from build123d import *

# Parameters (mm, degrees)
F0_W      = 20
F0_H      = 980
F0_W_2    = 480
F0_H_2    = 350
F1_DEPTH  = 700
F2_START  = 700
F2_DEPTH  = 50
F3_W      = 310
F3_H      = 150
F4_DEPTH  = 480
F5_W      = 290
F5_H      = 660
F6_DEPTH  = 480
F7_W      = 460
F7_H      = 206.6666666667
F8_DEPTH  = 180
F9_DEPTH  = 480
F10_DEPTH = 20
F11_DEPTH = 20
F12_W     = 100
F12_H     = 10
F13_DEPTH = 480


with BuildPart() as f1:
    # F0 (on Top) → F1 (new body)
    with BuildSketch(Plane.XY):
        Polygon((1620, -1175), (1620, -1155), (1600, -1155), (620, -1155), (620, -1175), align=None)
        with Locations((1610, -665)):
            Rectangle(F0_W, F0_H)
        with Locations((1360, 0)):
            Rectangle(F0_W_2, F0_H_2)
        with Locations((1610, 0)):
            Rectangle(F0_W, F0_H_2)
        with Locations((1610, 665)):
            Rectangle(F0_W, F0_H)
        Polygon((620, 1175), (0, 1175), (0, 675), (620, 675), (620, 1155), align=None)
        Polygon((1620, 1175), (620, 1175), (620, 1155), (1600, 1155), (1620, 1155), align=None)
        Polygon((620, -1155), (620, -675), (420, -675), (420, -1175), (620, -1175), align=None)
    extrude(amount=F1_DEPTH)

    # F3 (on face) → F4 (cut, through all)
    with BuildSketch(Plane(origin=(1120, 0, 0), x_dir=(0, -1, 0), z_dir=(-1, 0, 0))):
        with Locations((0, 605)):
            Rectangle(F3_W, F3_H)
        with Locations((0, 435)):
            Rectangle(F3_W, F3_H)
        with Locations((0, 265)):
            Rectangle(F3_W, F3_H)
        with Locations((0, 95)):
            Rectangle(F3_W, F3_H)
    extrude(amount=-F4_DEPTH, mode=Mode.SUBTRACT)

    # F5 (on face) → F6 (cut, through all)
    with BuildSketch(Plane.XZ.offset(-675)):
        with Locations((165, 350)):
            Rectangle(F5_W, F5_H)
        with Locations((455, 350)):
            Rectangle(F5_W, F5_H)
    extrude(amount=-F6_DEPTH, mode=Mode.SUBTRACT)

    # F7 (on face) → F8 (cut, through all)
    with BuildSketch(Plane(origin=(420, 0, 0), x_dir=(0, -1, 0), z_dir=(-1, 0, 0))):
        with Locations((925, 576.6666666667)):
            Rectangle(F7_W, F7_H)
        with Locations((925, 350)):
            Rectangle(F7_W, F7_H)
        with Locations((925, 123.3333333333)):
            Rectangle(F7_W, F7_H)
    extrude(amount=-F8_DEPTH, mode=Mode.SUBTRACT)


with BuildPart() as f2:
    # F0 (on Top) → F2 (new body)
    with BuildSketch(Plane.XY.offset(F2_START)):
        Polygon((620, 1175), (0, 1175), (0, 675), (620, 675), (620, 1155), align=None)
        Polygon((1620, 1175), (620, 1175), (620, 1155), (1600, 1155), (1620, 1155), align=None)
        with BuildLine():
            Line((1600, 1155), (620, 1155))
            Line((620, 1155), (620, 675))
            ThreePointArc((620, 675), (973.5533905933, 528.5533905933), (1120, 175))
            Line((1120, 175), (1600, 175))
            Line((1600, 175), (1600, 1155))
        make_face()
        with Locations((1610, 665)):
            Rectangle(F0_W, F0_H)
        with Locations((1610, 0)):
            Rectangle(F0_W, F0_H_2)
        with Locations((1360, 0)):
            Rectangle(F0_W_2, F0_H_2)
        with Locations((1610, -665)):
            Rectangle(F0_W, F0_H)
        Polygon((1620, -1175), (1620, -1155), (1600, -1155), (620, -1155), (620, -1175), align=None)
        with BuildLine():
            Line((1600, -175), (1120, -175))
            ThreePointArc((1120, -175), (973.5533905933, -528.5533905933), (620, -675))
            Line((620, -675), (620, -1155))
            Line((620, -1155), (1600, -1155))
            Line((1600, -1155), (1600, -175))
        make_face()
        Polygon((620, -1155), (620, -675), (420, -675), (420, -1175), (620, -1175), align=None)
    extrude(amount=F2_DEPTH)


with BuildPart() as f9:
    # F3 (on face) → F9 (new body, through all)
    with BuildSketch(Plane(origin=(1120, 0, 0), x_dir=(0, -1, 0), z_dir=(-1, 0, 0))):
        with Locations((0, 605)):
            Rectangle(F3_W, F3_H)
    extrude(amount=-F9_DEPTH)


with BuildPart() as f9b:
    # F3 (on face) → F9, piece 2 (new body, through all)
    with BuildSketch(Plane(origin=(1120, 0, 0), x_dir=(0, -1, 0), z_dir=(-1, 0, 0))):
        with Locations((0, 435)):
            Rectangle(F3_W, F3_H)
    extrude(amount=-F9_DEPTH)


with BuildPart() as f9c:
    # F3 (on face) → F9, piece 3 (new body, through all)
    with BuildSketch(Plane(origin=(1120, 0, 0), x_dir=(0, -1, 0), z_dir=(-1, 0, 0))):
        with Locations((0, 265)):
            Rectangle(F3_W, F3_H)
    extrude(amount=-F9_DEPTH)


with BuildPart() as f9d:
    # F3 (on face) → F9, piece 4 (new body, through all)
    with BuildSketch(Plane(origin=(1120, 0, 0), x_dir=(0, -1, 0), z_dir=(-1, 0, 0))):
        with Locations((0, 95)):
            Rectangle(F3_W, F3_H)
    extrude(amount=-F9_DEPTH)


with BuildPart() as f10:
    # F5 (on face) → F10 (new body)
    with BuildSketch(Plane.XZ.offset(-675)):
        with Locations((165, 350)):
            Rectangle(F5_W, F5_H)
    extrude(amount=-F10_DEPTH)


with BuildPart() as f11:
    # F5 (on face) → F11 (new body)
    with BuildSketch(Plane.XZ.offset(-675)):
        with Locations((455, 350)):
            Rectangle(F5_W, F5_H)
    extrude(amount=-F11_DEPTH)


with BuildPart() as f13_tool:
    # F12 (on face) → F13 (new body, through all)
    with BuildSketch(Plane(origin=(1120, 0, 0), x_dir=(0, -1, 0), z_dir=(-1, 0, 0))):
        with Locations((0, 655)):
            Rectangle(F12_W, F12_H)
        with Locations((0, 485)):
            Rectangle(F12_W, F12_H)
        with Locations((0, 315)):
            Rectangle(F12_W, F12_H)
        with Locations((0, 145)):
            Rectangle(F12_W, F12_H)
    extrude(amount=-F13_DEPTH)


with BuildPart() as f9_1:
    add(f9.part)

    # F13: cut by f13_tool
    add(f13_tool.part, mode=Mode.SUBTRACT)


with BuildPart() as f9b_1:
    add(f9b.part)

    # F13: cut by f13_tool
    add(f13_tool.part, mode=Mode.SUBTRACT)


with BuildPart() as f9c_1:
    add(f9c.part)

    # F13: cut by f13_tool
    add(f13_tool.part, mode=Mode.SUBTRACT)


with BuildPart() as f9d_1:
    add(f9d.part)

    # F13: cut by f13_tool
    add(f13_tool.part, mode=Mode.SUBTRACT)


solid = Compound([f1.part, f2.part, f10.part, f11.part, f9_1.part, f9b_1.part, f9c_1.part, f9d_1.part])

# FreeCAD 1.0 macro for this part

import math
import FreeCAD as App
import Part
import Sketcher

doc = App.newDocument("Part")
body = doc.addObject("PartDesign::Body", "Body")

# Sketch on XY plane
sketch1 = body.newObject("Sketcher::SketchObject", "Sketch")
sketch1.AttachmentSupport = (doc.getObject("XY_Plane"), [""])
sketch1.MapMode = "FlatFace"
sketch1.addGeometry(Part.LineSegment(App.Vector(1620, -1175, 0), App.Vector(1620, 1175, 0)), False)
sketch1.addGeometry(Part.LineSegment(App.Vector(1620, 1175, 0), App.Vector(0, 1175, 0)), False)
sketch1.addGeometry(Part.LineSegment(App.Vector(0, 1175, 0), App.Vector(0, 675, 0)), False)
sketch1.addGeometry(Part.LineSegment(App.Vector(0, 675, 0), App.Vector(620, 675, 0)), False)
sketch1.addGeometry(Part.LineSegment(App.Vector(620, 675, 0), App.Vector(620, 1155, 0)), False)
sketch1.addGeometry(Part.LineSegment(App.Vector(620, 1155, 0), App.Vector(1600, 1155, 0)), False)
sketch1.addGeometry(Part.LineSegment(App.Vector(1600, 1155, 0), App.Vector(1600, 175, 0)), False)
sketch1.addGeometry(Part.LineSegment(App.Vector(1600, 175, 0), App.Vector(1120, 175, 0)), False)
sketch1.addGeometry(Part.LineSegment(App.Vector(1120, 175, 0), App.Vector(1120, -175, 0)), False)
sketch1.addGeometry(Part.LineSegment(App.Vector(1120, -175, 0), App.Vector(1600, -175, 0)), False)
sketch1.addGeometry(Part.LineSegment(App.Vector(1600, -175, 0), App.Vector(1600, -1155, 0)), False)
sketch1.addGeometry(Part.LineSegment(App.Vector(1600, -1155, 0), App.Vector(620, -1155, 0)), False)
sketch1.addGeometry(Part.LineSegment(App.Vector(620, -1155, 0), App.Vector(620, -675, 0)), False)
sketch1.addGeometry(Part.LineSegment(App.Vector(620, -675, 0), App.Vector(420, -675, 0)), False)
sketch1.addGeometry(Part.LineSegment(App.Vector(420, -675, 0), App.Vector(420, -1175, 0)), False)
sketch1.addGeometry(Part.LineSegment(App.Vector(420, -1175, 0), App.Vector(1620, -1175, 0)), False)
sketch1.addConstraint(Sketcher.Constraint("Coincident", 0, 2, 1, 1))
sketch1.addConstraint(Sketcher.Constraint("Coincident", 1, 2, 2, 1))
sketch1.addConstraint(Sketcher.Constraint("Coincident", 2, 2, 3, 1))
sketch1.addConstraint(Sketcher.Constraint("Coincident", 3, 2, 4, 1))
sketch1.addConstraint(Sketcher.Constraint("Coincident", 4, 2, 5, 1))
sketch1.addConstraint(Sketcher.Constraint("Coincident", 5, 2, 6, 1))
sketch1.addConstraint(Sketcher.Constraint("Coincident", 6, 2, 7, 1))
sketch1.addConstraint(Sketcher.Constraint("Coincident", 7, 2, 8, 1))
sketch1.addConstraint(Sketcher.Constraint("Coincident", 8, 2, 9, 1))
sketch1.addConstraint(Sketcher.Constraint("Coincident", 9, 2, 10, 1))
sketch1.addConstraint(Sketcher.Constraint("Coincident", 10, 2, 11, 1))
sketch1.addConstraint(Sketcher.Constraint("Coincident", 11, 2, 12, 1))
sketch1.addConstraint(Sketcher.Constraint("Coincident", 12, 2, 13, 1))
sketch1.addConstraint(Sketcher.Constraint("Coincident", 13, 2, 14, 1))
sketch1.addConstraint(Sketcher.Constraint("Coincident", 14, 2, 15, 1))
sketch1.addConstraint(Sketcher.Constraint("Coincident", 15, 2, 0, 1))
sketch1.addConstraint(Sketcher.Constraint("Vertical", 0))
sketch1.addConstraint(Sketcher.Constraint("Horizontal", 1))
sketch1.addConstraint(Sketcher.Constraint("Vertical", 2))
sketch1.addConstraint(Sketcher.Constraint("Horizontal", 3))
sketch1.addConstraint(Sketcher.Constraint("Vertical", 4))
sketch1.addConstraint(Sketcher.Constraint("Horizontal", 5))
sketch1.addConstraint(Sketcher.Constraint("Vertical", 6))
sketch1.addConstraint(Sketcher.Constraint("Horizontal", 7))
sketch1.addConstraint(Sketcher.Constraint("Vertical", 8))
sketch1.addConstraint(Sketcher.Constraint("Horizontal", 9))
sketch1.addConstraint(Sketcher.Constraint("Vertical", 10))
sketch1.addConstraint(Sketcher.Constraint("Horizontal", 11))
sketch1.addConstraint(Sketcher.Constraint("Vertical", 12))
sketch1.addConstraint(Sketcher.Constraint("Horizontal", 13))
sketch1.addConstraint(Sketcher.Constraint("Vertical", 14))
sketch1.addConstraint(Sketcher.Constraint("Horizontal", 15))
sketch1.addConstraint(Sketcher.Constraint("Symmetric", 6, 2, 9, 2, -1))
sketch1.addConstraint(Sketcher.Constraint("Symmetric", 4, 2, 11, 2, -1))
sketch1.addConstraint(Sketcher.Constraint("PointOnObject", 1, 2, -2))
sketch1.addConstraint(Sketcher.Constraint("Equal", 9, 4))
sketch1.addConstraint(Sketcher.Constraint("Equal", 11, 6))
sketch1.addConstraint(Sketcher.Constraint("Equal", 4, 12))
sketch1.addConstraint(Sketcher.Constraint("Equal", 2, 14))
sketch1.addConstraint(Sketcher.Constraint("DistanceX", 1, 2, 1, 1, 1620.0))
sketch1.addConstraint(Sketcher.Constraint("DistanceX", 3, 1, 3, 2, 620.0))
sketch1.addConstraint(Sketcher.Constraint("DistanceX", 5, 1, 5, 2, 980.0))
sketch1.addConstraint(Sketcher.Constraint("DistanceX", 7, 2, 7, 1, 480.0))
sketch1.addConstraint(Sketcher.Constraint("DistanceX", 13, 2, 13, 1, 200.0))
sketch1.addConstraint(Sketcher.Constraint("DistanceY", 0, 1, 0, 2, 2350.0))
sketch1.addConstraint(Sketcher.Constraint("DistanceY", 2, 2, 2, 1, 500.0))
pad1 = body.newObject("PartDesign::Pad", "Pad")
pad1.Profile = sketch1
pad1.Length = 700

# Sketch on YZ plane
sketch2 = body.newObject("Sketcher::SketchObject", "Sketch001")
sketch2.AttachmentSupport = (doc.getObject("YZ_Plane"), [""])
sketch2.MapMode = "FlatFace"
sketch2.AttachmentOffset = App.Placement(App.Vector(0, 0, 1120), App.Rotation())
sketch2.addGeometry(Part.LineSegment(App.Vector(155, 680, 0), App.Vector(155, 530, 0)), False)
sketch2.addGeometry(Part.LineSegment(App.Vector(155, 530, 0), App.Vector(-155, 530, 0)), False)
sketch2.addGeometry(Part.LineSegment(App.Vector(-155, 530, 0), App.Vector(-155, 680, 0)), False)
sketch2.addGeometry(Part.LineSegment(App.Vector(-155, 680, 0), App.Vector(155, 680, 0)), False)
sketch2.addGeometry(Part.LineSegment(App.Vector(155, 510, 0), App.Vector(155, 360, 0)), False)
sketch2.addGeometry(Part.LineSegment(App.Vector(155, 360, 0), App.Vector(-155, 360, 0)), False)
sketch2.addGeometry(Part.LineSegment(App.Vector(-155, 360, 0), App.Vector(-155, 510, 0)), False)
sketch2.addGeometry(Part.LineSegment(App.Vector(-155, 510, 0), App.Vector(155, 510, 0)), False)
sketch2.addGeometry(Part.LineSegment(App.Vector(155, 340, 0), App.Vector(155, 190, 0)), False)
sketch2.addGeometry(Part.LineSegment(App.Vector(155, 190, 0), App.Vector(-155, 190, 0)), False)
sketch2.addGeometry(Part.LineSegment(App.Vector(-155, 190, 0), App.Vector(-155, 340, 0)), False)
sketch2.addGeometry(Part.LineSegment(App.Vector(-155, 340, 0), App.Vector(155, 340, 0)), False)
sketch2.addGeometry(Part.LineSegment(App.Vector(155, 170, 0), App.Vector(155, 20, 0)), False)
sketch2.addGeometry(Part.LineSegment(App.Vector(155, 20, 0), App.Vector(-155, 20, 0)), False)
sketch2.addGeometry(Part.LineSegment(App.Vector(-155, 20, 0), App.Vector(-155, 170, 0)), False)
sketch2.addGeometry(Part.LineSegment(App.Vector(-155, 170, 0), App.Vector(155, 170, 0)), False)
sketch2.addConstraint(Sketcher.Constraint("Coincident", 0, 2, 1, 1))
sketch2.addConstraint(Sketcher.Constraint("Coincident", 1, 2, 2, 1))
sketch2.addConstraint(Sketcher.Constraint("Coincident", 2, 2, 3, 1))
sketch2.addConstraint(Sketcher.Constraint("Coincident", 3, 2, 0, 1))
sketch2.addConstraint(Sketcher.Constraint("Coincident", 4, 2, 5, 1))
sketch2.addConstraint(Sketcher.Constraint("Coincident", 5, 2, 6, 1))
sketch2.addConstraint(Sketcher.Constraint("Coincident", 6, 2, 7, 1))
sketch2.addConstraint(Sketcher.Constraint("Coincident", 7, 2, 4, 1))
sketch2.addConstraint(Sketcher.Constraint("Coincident", 8, 2, 9, 1))
sketch2.addConstraint(Sketcher.Constraint("Coincident", 9, 2, 10, 1))
sketch2.addConstraint(Sketcher.Constraint("Coincident", 10, 2, 11, 1))
sketch2.addConstraint(Sketcher.Constraint("Coincident", 11, 2, 8, 1))
sketch2.addConstraint(Sketcher.Constraint("Coincident", 12, 2, 13, 1))
sketch2.addConstraint(Sketcher.Constraint("Coincident", 13, 2, 14, 1))
sketch2.addConstraint(Sketcher.Constraint("Coincident", 14, 2, 15, 1))
sketch2.addConstraint(Sketcher.Constraint("Coincident", 15, 2, 12, 1))
sketch2.addConstraint(Sketcher.Constraint("Vertical", 0))
sketch2.addConstraint(Sketcher.Constraint("Horizontal", 1))
sketch2.addConstraint(Sketcher.Constraint("Vertical", 2))
sketch2.addConstraint(Sketcher.Constraint("Horizontal", 3))
sketch2.addConstraint(Sketcher.Constraint("Vertical", 4))
sketch2.addConstraint(Sketcher.Constraint("Horizontal", 5))
sketch2.addConstraint(Sketcher.Constraint("Vertical", 6))
sketch2.addConstraint(Sketcher.Constraint("Horizontal", 7))
sketch2.addConstraint(Sketcher.Constraint("Vertical", 8))
sketch2.addConstraint(Sketcher.Constraint("Horizontal", 9))
sketch2.addConstraint(Sketcher.Constraint("Vertical", 10))
sketch2.addConstraint(Sketcher.Constraint("Horizontal", 11))
sketch2.addConstraint(Sketcher.Constraint("Vertical", 12))
sketch2.addConstraint(Sketcher.Constraint("Horizontal", 13))
sketch2.addConstraint(Sketcher.Constraint("Vertical", 14))
sketch2.addConstraint(Sketcher.Constraint("Horizontal", 15))
sketch2.addConstraint(Sketcher.Constraint("Vertical", 3, 2, 4, 2))
sketch2.addConstraint(Sketcher.Constraint("Vertical", 2, 2, 5, 2))
sketch2.addConstraint(Sketcher.Constraint("Vertical", 7, 2, 8, 2))
sketch2.addConstraint(Sketcher.Constraint("Vertical", 6, 2, 9, 2))
sketch2.addConstraint(Sketcher.Constraint("Vertical", 11, 2, 12, 2))
sketch2.addConstraint(Sketcher.Constraint("Vertical", 10, 2, 13, 2))
sketch2.addConstraint(Sketcher.Constraint("Equal", 2, 4))
sketch2.addConstraint(Sketcher.Constraint("Equal", 6, 8))
sketch2.addConstraint(Sketcher.Constraint("Equal", 10, 12))
sketch2.addConstraint(Sketcher.Constraint("DistanceX", 1, 2, 1, 1, 310.0))
sketch2.addConstraint(Sketcher.Constraint("DistanceY", 0, 2, 0, 1, 150.0))
sketch2.addConstraint(Sketcher.Constraint("DistanceX", -1, 1, 0, 2, 155.0))
sketch2.addConstraint(Sketcher.Constraint("DistanceY", -1, 1, 0, 2, 530.0))
sketch2.addConstraint(Sketcher.Constraint("DistanceY", -1, 1, 4, 2, 360.0))
sketch2.addConstraint(Sketcher.Constraint("DistanceY", -1, 1, 8, 2, 190.0))
sketch2.addConstraint(Sketcher.Constraint("DistanceY", -1, 1, 12, 2, 20.0))
pocket1 = body.newObject("PartDesign::Pocket", "Pocket")
pocket1.Profile = sketch2
pocket1.Length = 480
pocket1.Reversed = True

# Sketch on XZ plane
sketch3 = body.newObject("Sketcher::SketchObject", "Sketch002")
sketch3.AttachmentSupport = (doc.getObject("XZ_Plane"), [""])
sketch3.MapMode = "FlatFace"
sketch3.AttachmentOffset = App.Placement(App.Vector(0, 0, -675), App.Rotation())
sketch3.addGeometry(Part.LineSegment(App.Vector(20, 680, 0), App.Vector(20, 20, 0)), False)
sketch3.addGeometry(Part.LineSegment(App.Vector(20, 20, 0), App.Vector(600, 20, 0)), False)
sketch3.addGeometry(Part.LineSegment(App.Vector(600, 20, 0), App.Vector(600, 680, 0)), False)
sketch3.addGeometry(Part.LineSegment(App.Vector(600, 680, 0), App.Vector(20, 680, 0)), False)
sketch3.addConstraint(Sketcher.Constraint("Coincident", 0, 2, 1, 1))
sketch3.addConstraint(Sketcher.Constraint("Coincident", 1, 2, 2, 1))
sketch3.addConstraint(Sketcher.Constraint("Coincident", 2, 2, 3, 1))
sketch3.addConstraint(Sketcher.Constraint("Coincident", 3, 2, 0, 1))
sketch3.addConstraint(Sketcher.Constraint("Vertical", 0))
sketch3.addConstraint(Sketcher.Constraint("Horizontal", 1))
sketch3.addConstraint(Sketcher.Constraint("Vertical", 2))
sketch3.addConstraint(Sketcher.Constraint("Horizontal", 3))
sketch3.addConstraint(Sketcher.Constraint("DistanceX", 1, 1, 1, 2, 580.0))
sketch3.addConstraint(Sketcher.Constraint("DistanceY", 0, 2, 0, 1, 660.0))
sketch3.addConstraint(Sketcher.Constraint("DistanceX", -1, 1, 0, 2, 20.0))
sketch3.addConstraint(Sketcher.Constraint("DistanceY", -1, 1, 0, 2, 20.0))
pocket2 = body.newObject("PartDesign::Pocket", "Pocket001")
pocket2.Profile = sketch3
pocket2.Length = 480

# Sketch on YZ plane
sketch4 = body.newObject("Sketcher::SketchObject", "Sketch003")
sketch4.AttachmentSupport = (doc.getObject("YZ_Plane"), [""])
sketch4.MapMode = "FlatFace"
sketch4.AttachmentOffset = App.Placement(App.Vector(0, 0, 420), App.Rotation())
sketch4.addGeometry(Part.LineSegment(App.Vector(-695, 680, 0), App.Vector(-695, 473, 0)), False)
sketch4.addGeometry(Part.LineSegment(App.Vector(-695, 473, 0), App.Vector(-1155, 473, 0)), False)
sketch4.addGeometry(Part.LineSegment(App.Vector(-1155, 473, 0), App.Vector(-1155, 680, 0)), False)
sketch4.addGeometry(Part.LineSegment(App.Vector(-1155, 680, 0), App.Vector(-695, 680, 0)), False)
sketch4.addGeometry(Part.LineSegment(App.Vector(-695, 453, 0), App.Vector(-695, 247, 0)), False)
sketch4.addGeometry(Part.LineSegment(App.Vector(-695, 247, 0), App.Vector(-1155, 247, 0)), False)
sketch4.addGeometry(Part.LineSegment(App.Vector(-1155, 247, 0), App.Vector(-1155, 453, 0)), False)
sketch4.addGeometry(Part.LineSegment(App.Vector(-1155, 453, 0), App.Vector(-695, 453, 0)), False)
sketch4.addGeometry(Part.LineSegment(App.Vector(-695, 227, 0), App.Vector(-695, 20, 0)), False)
sketch4.addGeometry(Part.LineSegment(App.Vector(-695, 20, 0), App.Vector(-1155, 20, 0)), False)
sketch4.addGeometry(Part.LineSegment(App.Vector(-1155, 20, 0), App.Vector(-1155, 227, 0)), False)
sketch4.addGeometry(Part.LineSegment(App.Vector(-1155, 227, 0), App.Vector(-695, 227, 0)), False)
sketch4.addConstraint(Sketcher.Constraint("Coincident", 0, 2, 1, 1))
sketch4.addConstraint(Sketcher.Constraint("Coincident", 1, 2, 2, 1))
sketch4.addConstraint(Sketcher.Constraint("Coincident", 2, 2, 3, 1))
sketch4.addConstraint(Sketcher.Constraint("Coincident", 3, 2, 0, 1))
sketch4.addConstraint(Sketcher.Constraint("Coincident", 4, 2, 5, 1))
sketch4.addConstraint(Sketcher.Constraint("Coincident", 5, 2, 6, 1))
sketch4.addConstraint(Sketcher.Constraint("Coincident", 6, 2, 7, 1))
sketch4.addConstraint(Sketcher.Constraint("Coincident", 7, 2, 4, 1))
sketch4.addConstraint(Sketcher.Constraint("Coincident", 8, 2, 9, 1))
sketch4.addConstraint(Sketcher.Constraint("Coincident", 9, 2, 10, 1))
sketch4.addConstraint(Sketcher.Constraint("Coincident", 10, 2, 11, 1))
sketch4.addConstraint(Sketcher.Constraint("Coincident", 11, 2, 8, 1))
sketch4.addConstraint(Sketcher.Constraint("Vertical", 0))
sketch4.addConstraint(Sketcher.Constraint("Horizontal", 1))
sketch4.addConstraint(Sketcher.Constraint("Vertical", 2))
sketch4.addConstraint(Sketcher.Constraint("Horizontal", 3))
sketch4.addConstraint(Sketcher.Constraint("Vertical", 4))
sketch4.addConstraint(Sketcher.Constraint("Horizontal", 5))
sketch4.addConstraint(Sketcher.Constraint("Vertical", 6))
sketch4.addConstraint(Sketcher.Constraint("Horizontal", 7))
sketch4.addConstraint(Sketcher.Constraint("Vertical", 8))
sketch4.addConstraint(Sketcher.Constraint("Horizontal", 9))
sketch4.addConstraint(Sketcher.Constraint("Vertical", 10))
sketch4.addConstraint(Sketcher.Constraint("Horizontal", 11))
sketch4.addConstraint(Sketcher.Constraint("Vertical", 3, 2, 4, 2))
sketch4.addConstraint(Sketcher.Constraint("Vertical", 2, 2, 5, 2))
sketch4.addConstraint(Sketcher.Constraint("Vertical", 7, 2, 8, 2))
sketch4.addConstraint(Sketcher.Constraint("Vertical", 6, 2, 9, 2))
sketch4.addConstraint(Sketcher.Constraint("Equal", 2, 4))
sketch4.addConstraint(Sketcher.Constraint("Equal", 6, 8))
sketch4.addConstraint(Sketcher.Constraint("DistanceX", 1, 2, 1, 1, 460.0))
sketch4.addConstraint(Sketcher.Constraint("DistanceX", 0, 2, -1, 1, 695.0))
sketch4.addConstraint(Sketcher.Constraint("DistanceY", -1, 1, 2, 2, 680.0))
sketch4.addConstraint(Sketcher.Constraint("DistanceY", -1, 1, 8, 2, 20.0))
sketch4.addConstraint(Sketcher.Constraint("DistanceY", 6, 2, 1, 2, 20.0))
sketch4.addConstraint(Sketcher.Constraint("DistanceY", 10, 2, 5, 2, 20.0))
pocket3 = body.newObject("PartDesign::Pocket", "Pocket002")
pocket3.Profile = sketch4
pocket3.Length = 180
pocket3.Reversed = True
body2 = doc.addObject("PartDesign::Body", "Body001")

# Sketch on XY plane
sketch5 = body2.newObject("Sketcher::SketchObject", "Sketch004")
sketch5.AttachmentSupport = (doc.getObject("XY_Plane001"), [""])
sketch5.MapMode = "FlatFace"
sketch5.AttachmentOffset = App.Placement(App.Vector(0, 0, 700), App.Rotation())
sketch5.addGeometry(Part.LineSegment(App.Vector(0, 1175, 0), App.Vector(0, 675, 0)), False)
sketch5.addGeometry(Part.LineSegment(App.Vector(0, 675, 0), App.Vector(620, 675, 0)), False)
sketch5.addGeometry(Part.ArcOfCircle(Part.Circle(App.Vector(620, 175, 0), App.Vector(0, 0, 1), 500), math.radians(0), math.radians(90)), False)
sketch5.addGeometry(Part.LineSegment(App.Vector(1120, 175, 0), App.Vector(1120, -175, 0)), False)
sketch5.addGeometry(Part.ArcOfCircle(Part.Circle(App.Vector(620, -175, 0), App.Vector(0, 0, 1), 500), math.radians(-90), math.radians(0)), False)
sketch5.addGeometry(Part.LineSegment(App.Vector(620, -675, 0), App.Vector(420, -675, 0)), False)
sketch5.addGeometry(Part.LineSegment(App.Vector(420, -675, 0), App.Vector(420, -1175, 0)), False)
sketch5.addGeometry(Part.LineSegment(App.Vector(420, -1175, 0), App.Vector(1620, -1175, 0)), False)
sketch5.addGeometry(Part.LineSegment(App.Vector(1620, -1175, 0), App.Vector(1620, 1175, 0)), False)
sketch5.addGeometry(Part.LineSegment(App.Vector(1620, 1175, 0), App.Vector(0, 1175, 0)), False)
sketch5.addConstraint(Sketcher.Constraint("Coincident", 0, 2, 1, 1))
sketch5.addConstraint(Sketcher.Constraint("Tangent", 1, 2, 2, 2))
sketch5.addConstraint(Sketcher.Constraint("Tangent", 2, 1, 3, 1))
sketch5.addConstraint(Sketcher.Constraint("Tangent", 3, 2, 4, 2))
sketch5.addConstraint(Sketcher.Constraint("Tangent", 4, 1, 5, 1))
sketch5.addConstraint(Sketcher.Constraint("Coincident", 5, 2, 6, 1))
sketch5.addConstraint(Sketcher.Constraint("Coincident", 6, 2, 7, 1))
sketch5.addConstraint(Sketcher.Constraint("Coincident", 7, 2, 8, 1))
sketch5.addConstraint(Sketcher.Constraint("Coincident", 8, 2, 9, 1))
sketch5.addConstraint(Sketcher.Constraint("Coincident", 9, 2, 0, 1))
sketch5.addConstraint(Sketcher.Constraint("Vertical", 0))
sketch5.addConstraint(Sketcher.Constraint("Horizontal", 1))
sketch5.addConstraint(Sketcher.Constraint("Vertical", 3))
sketch5.addConstraint(Sketcher.Constraint("Horizontal", 5))
sketch5.addConstraint(Sketcher.Constraint("Vertical", 6))
sketch5.addConstraint(Sketcher.Constraint("Horizontal", 7))
sketch5.addConstraint(Sketcher.Constraint("Vertical", 8))
sketch5.addConstraint(Sketcher.Constraint("Horizontal", 9))
sketch5.addConstraint(Sketcher.Constraint("Equal", 2, 4))
sketch5.addConstraint(Sketcher.Constraint("PointOnObject", 0, 2, -2))
sketch5.addConstraint(Sketcher.Constraint("Equal", 0, 6))
sketch5.addConstraint(Sketcher.Constraint("Radius", 2, 500.0))
sketch5.addConstraint(Sketcher.Constraint("DistanceX", 1, 1, 1, 2, 620.0))
sketch5.addConstraint(Sketcher.Constraint("DistanceX", 5, 2, 5, 1, 200.0))
sketch5.addConstraint(Sketcher.Constraint("DistanceX", 7, 1, 7, 2, 1200.0))
sketch5.addConstraint(Sketcher.Constraint("DistanceY", 0, 2, 0, 1, 500.0))
sketch5.addConstraint(Sketcher.Constraint("DistanceY", 3, 2, 3, 1, 350.0))
sketch5.addConstraint(Sketcher.Constraint("DistanceY", -1, 1, 2, 3, 175.0))
pad2 = body2.newObject("PartDesign::Pad", "Pad001")
pad2.Profile = sketch5
pad2.Length = 50
body3 = doc.addObject("PartDesign::Body", "Body002")

# Sketch on YZ plane
sketch6 = body3.newObject("Sketcher::SketchObject", "Sketch005")
sketch6.AttachmentSupport = (doc.getObject("YZ_Plane002"), [""])
sketch6.MapMode = "FlatFace"
sketch6.AttachmentOffset = App.Placement(App.Vector(0, 0, 1120), App.Rotation())
sketch6.addGeometry(Part.LineSegment(App.Vector(155, 680, 0), App.Vector(155, 530, 0)), False)
sketch6.addGeometry(Part.LineSegment(App.Vector(155, 530, 0), App.Vector(-155, 530, 0)), False)
sketch6.addGeometry(Part.LineSegment(App.Vector(-155, 530, 0), App.Vector(-155, 680, 0)), False)
sketch6.addGeometry(Part.LineSegment(App.Vector(-155, 680, 0), App.Vector(155, 680, 0)), False)
sketch6.addConstraint(Sketcher.Constraint("Coincident", 0, 2, 1, 1))
sketch6.addConstraint(Sketcher.Constraint("Coincident", 1, 2, 2, 1))
sketch6.addConstraint(Sketcher.Constraint("Coincident", 2, 2, 3, 1))
sketch6.addConstraint(Sketcher.Constraint("Coincident", 3, 2, 0, 1))
sketch6.addConstraint(Sketcher.Constraint("Vertical", 0))
sketch6.addConstraint(Sketcher.Constraint("Horizontal", 1))
sketch6.addConstraint(Sketcher.Constraint("Vertical", 2))
sketch6.addConstraint(Sketcher.Constraint("Horizontal", 3))
sketch6.addConstraint(Sketcher.Constraint("DistanceX", 1, 2, 1, 1, 310.0))
sketch6.addConstraint(Sketcher.Constraint("DistanceY", 0, 2, 0, 1, 150.0))
sketch6.addConstraint(Sketcher.Constraint("DistanceX", -1, 1, 0, 2, 155.0))
sketch6.addConstraint(Sketcher.Constraint("DistanceY", -1, 1, 0, 2, 530.0))
pad3 = body3.newObject("PartDesign::Pad", "Pad002")
pad3.Profile = sketch6
pad3.Length = 480
body4 = doc.addObject("PartDesign::Body", "Body003")

# Sketch on YZ plane
sketch7 = body4.newObject("Sketcher::SketchObject", "Sketch006")
sketch7.AttachmentSupport = (doc.getObject("YZ_Plane003"), [""])
sketch7.MapMode = "FlatFace"
sketch7.AttachmentOffset = App.Placement(App.Vector(0, 0, 1120), App.Rotation())
sketch7.addGeometry(Part.LineSegment(App.Vector(155, 510, 0), App.Vector(155, 360, 0)), False)
sketch7.addGeometry(Part.LineSegment(App.Vector(155, 360, 0), App.Vector(-155, 360, 0)), False)
sketch7.addGeometry(Part.LineSegment(App.Vector(-155, 360, 0), App.Vector(-155, 510, 0)), False)
sketch7.addGeometry(Part.LineSegment(App.Vector(-155, 510, 0), App.Vector(155, 510, 0)), False)
sketch7.addConstraint(Sketcher.Constraint("Coincident", 0, 2, 1, 1))
sketch7.addConstraint(Sketcher.Constraint("Coincident", 1, 2, 2, 1))
sketch7.addConstraint(Sketcher.Constraint("Coincident", 2, 2, 3, 1))
sketch7.addConstraint(Sketcher.Constraint("Coincident", 3, 2, 0, 1))
sketch7.addConstraint(Sketcher.Constraint("Vertical", 0))
sketch7.addConstraint(Sketcher.Constraint("Horizontal", 1))
sketch7.addConstraint(Sketcher.Constraint("Vertical", 2))
sketch7.addConstraint(Sketcher.Constraint("Horizontal", 3))
sketch7.addConstraint(Sketcher.Constraint("DistanceX", 1, 2, 1, 1, 310.0))
sketch7.addConstraint(Sketcher.Constraint("DistanceY", 0, 2, 0, 1, 150.0))
sketch7.addConstraint(Sketcher.Constraint("DistanceX", -1, 1, 0, 2, 155.0))
sketch7.addConstraint(Sketcher.Constraint("DistanceY", -1, 1, 0, 2, 360.0))
pad4 = body4.newObject("PartDesign::Pad", "Pad003")
pad4.Profile = sketch7
pad4.Length = 480
body5 = doc.addObject("PartDesign::Body", "Body004")

# Sketch on YZ plane
sketch8 = body5.newObject("Sketcher::SketchObject", "Sketch007")
sketch8.AttachmentSupport = (doc.getObject("YZ_Plane004"), [""])
sketch8.MapMode = "FlatFace"
sketch8.AttachmentOffset = App.Placement(App.Vector(0, 0, 1120), App.Rotation())
sketch8.addGeometry(Part.LineSegment(App.Vector(155, 340, 0), App.Vector(155, 190, 0)), False)
sketch8.addGeometry(Part.LineSegment(App.Vector(155, 190, 0), App.Vector(-155, 190, 0)), False)
sketch8.addGeometry(Part.LineSegment(App.Vector(-155, 190, 0), App.Vector(-155, 340, 0)), False)
sketch8.addGeometry(Part.LineSegment(App.Vector(-155, 340, 0), App.Vector(155, 340, 0)), False)
sketch8.addConstraint(Sketcher.Constraint("Coincident", 0, 2, 1, 1))
sketch8.addConstraint(Sketcher.Constraint("Coincident", 1, 2, 2, 1))
sketch8.addConstraint(Sketcher.Constraint("Coincident", 2, 2, 3, 1))
sketch8.addConstraint(Sketcher.Constraint("Coincident", 3, 2, 0, 1))
sketch8.addConstraint(Sketcher.Constraint("Vertical", 0))
sketch8.addConstraint(Sketcher.Constraint("Horizontal", 1))
sketch8.addConstraint(Sketcher.Constraint("Vertical", 2))
sketch8.addConstraint(Sketcher.Constraint("Horizontal", 3))
sketch8.addConstraint(Sketcher.Constraint("DistanceX", 1, 2, 1, 1, 310.0))
sketch8.addConstraint(Sketcher.Constraint("DistanceY", 0, 2, 0, 1, 150.0))
sketch8.addConstraint(Sketcher.Constraint("DistanceX", -1, 1, 0, 2, 155.0))
sketch8.addConstraint(Sketcher.Constraint("DistanceY", -1, 1, 0, 2, 190.0))
pad5 = body5.newObject("PartDesign::Pad", "Pad004")
pad5.Profile = sketch8
pad5.Length = 480
body6 = doc.addObject("PartDesign::Body", "Body005")

# Sketch on YZ plane
sketch9 = body6.newObject("Sketcher::SketchObject", "Sketch008")
sketch9.AttachmentSupport = (doc.getObject("YZ_Plane005"), [""])
sketch9.MapMode = "FlatFace"
sketch9.AttachmentOffset = App.Placement(App.Vector(0, 0, 1120), App.Rotation())
sketch9.addGeometry(Part.LineSegment(App.Vector(155, 170, 0), App.Vector(155, 20, 0)), False)
sketch9.addGeometry(Part.LineSegment(App.Vector(155, 20, 0), App.Vector(-155, 20, 0)), False)
sketch9.addGeometry(Part.LineSegment(App.Vector(-155, 20, 0), App.Vector(-155, 170, 0)), False)
sketch9.addGeometry(Part.LineSegment(App.Vector(-155, 170, 0), App.Vector(155, 170, 0)), False)
sketch9.addConstraint(Sketcher.Constraint("Coincident", 0, 2, 1, 1))
sketch9.addConstraint(Sketcher.Constraint("Coincident", 1, 2, 2, 1))
sketch9.addConstraint(Sketcher.Constraint("Coincident", 2, 2, 3, 1))
sketch9.addConstraint(Sketcher.Constraint("Coincident", 3, 2, 0, 1))
sketch9.addConstraint(Sketcher.Constraint("Vertical", 0))
sketch9.addConstraint(Sketcher.Constraint("Horizontal", 1))
sketch9.addConstraint(Sketcher.Constraint("Vertical", 2))
sketch9.addConstraint(Sketcher.Constraint("Horizontal", 3))
sketch9.addConstraint(Sketcher.Constraint("DistanceX", 1, 2, 1, 1, 310.0))
sketch9.addConstraint(Sketcher.Constraint("DistanceY", 0, 2, 0, 1, 150.0))
sketch9.addConstraint(Sketcher.Constraint("DistanceX", -1, 1, 0, 2, 155.0))
sketch9.addConstraint(Sketcher.Constraint("DistanceY", -1, 1, 0, 2, 20.0))
pad6 = body6.newObject("PartDesign::Pad", "Pad005")
pad6.Profile = sketch9
pad6.Length = 480
body7 = doc.addObject("PartDesign::Body", "Body006")

# Sketch on XZ plane
sketch10 = body7.newObject("Sketcher::SketchObject", "Sketch009")
sketch10.AttachmentSupport = (doc.getObject("XZ_Plane006"), [""])
sketch10.MapMode = "FlatFace"
sketch10.AttachmentOffset = App.Placement(App.Vector(0, 0, -675), App.Rotation())
sketch10.addGeometry(Part.LineSegment(App.Vector(20, 680, 0), App.Vector(20, 20, 0)), False)
sketch10.addGeometry(Part.LineSegment(App.Vector(20, 20, 0), App.Vector(310, 20, 0)), False)
sketch10.addGeometry(Part.LineSegment(App.Vector(310, 20, 0), App.Vector(310, 680, 0)), False)
sketch10.addGeometry(Part.LineSegment(App.Vector(310, 680, 0), App.Vector(20, 680, 0)), False)
sketch10.addConstraint(Sketcher.Constraint("Coincident", 0, 2, 1, 1))
sketch10.addConstraint(Sketcher.Constraint("Coincident", 1, 2, 2, 1))
sketch10.addConstraint(Sketcher.Constraint("Coincident", 2, 2, 3, 1))
sketch10.addConstraint(Sketcher.Constraint("Coincident", 3, 2, 0, 1))
sketch10.addConstraint(Sketcher.Constraint("Vertical", 0))
sketch10.addConstraint(Sketcher.Constraint("Horizontal", 1))
sketch10.addConstraint(Sketcher.Constraint("Vertical", 2))
sketch10.addConstraint(Sketcher.Constraint("Horizontal", 3))
sketch10.addConstraint(Sketcher.Constraint("DistanceX", 1, 1, 1, 2, 290.0))
sketch10.addConstraint(Sketcher.Constraint("DistanceY", 0, 2, 0, 1, 660.0))
sketch10.addConstraint(Sketcher.Constraint("DistanceX", -1, 1, 0, 2, 20.0))
sketch10.addConstraint(Sketcher.Constraint("DistanceY", -1, 1, 0, 2, 20.0))
pad7 = body7.newObject("PartDesign::Pad", "Pad006")
pad7.Profile = sketch10
pad7.Length = 20
pad7.Reversed = True
body8 = doc.addObject("PartDesign::Body", "Body007")

# Sketch on XZ plane
sketch11 = body8.newObject("Sketcher::SketchObject", "Sketch010")
sketch11.AttachmentSupport = (doc.getObject("XZ_Plane007"), [""])
sketch11.MapMode = "FlatFace"
sketch11.AttachmentOffset = App.Placement(App.Vector(0, 0, -675), App.Rotation())
sketch11.addGeometry(Part.LineSegment(App.Vector(310, 680, 0), App.Vector(310, 20, 0)), False)
sketch11.addGeometry(Part.LineSegment(App.Vector(310, 20, 0), App.Vector(600, 20, 0)), False)
sketch11.addGeometry(Part.LineSegment(App.Vector(600, 20, 0), App.Vector(600, 680, 0)), False)
sketch11.addGeometry(Part.LineSegment(App.Vector(600, 680, 0), App.Vector(310, 680, 0)), False)
sketch11.addConstraint(Sketcher.Constraint("Coincident", 0, 2, 1, 1))
sketch11.addConstraint(Sketcher.Constraint("Coincident", 1, 2, 2, 1))
sketch11.addConstraint(Sketcher.Constraint("Coincident", 2, 2, 3, 1))
sketch11.addConstraint(Sketcher.Constraint("Coincident", 3, 2, 0, 1))
sketch11.addConstraint(Sketcher.Constraint("Vertical", 0))
sketch11.addConstraint(Sketcher.Constraint("Horizontal", 1))
sketch11.addConstraint(Sketcher.Constraint("Vertical", 2))
sketch11.addConstraint(Sketcher.Constraint("Horizontal", 3))
sketch11.addConstraint(Sketcher.Constraint("DistanceX", 1, 1, 1, 2, 290.0))
sketch11.addConstraint(Sketcher.Constraint("DistanceY", 0, 2, 0, 1, 660.0))
sketch11.addConstraint(Sketcher.Constraint("DistanceX", -1, 1, 0, 2, 310.0))
sketch11.addConstraint(Sketcher.Constraint("DistanceY", -1, 1, 0, 2, 20.0))
pad8 = body8.newObject("PartDesign::Pad", "Pad007")
pad8.Profile = sketch11
pad8.Length = 20
pad8.Reversed = True
body9 = doc.addObject("PartDesign::Body", "Body008")
body9.AllowCompound = True

# Sketch on YZ plane
sketch12 = body9.newObject("Sketcher::SketchObject", "Sketch011")
sketch12.AttachmentSupport = (doc.getObject("YZ_Plane008"), [""])
sketch12.MapMode = "FlatFace"
sketch12.AttachmentOffset = App.Placement(App.Vector(0, 0, 1120), App.Rotation())
sketch12.addGeometry(Part.LineSegment(App.Vector(50, 660, 0), App.Vector(50, 650, 0)), False)
sketch12.addGeometry(Part.LineSegment(App.Vector(50, 650, 0), App.Vector(-50, 650, 0)), False)
sketch12.addGeometry(Part.LineSegment(App.Vector(-50, 650, 0), App.Vector(-50, 660, 0)), False)
sketch12.addGeometry(Part.LineSegment(App.Vector(-50, 660, 0), App.Vector(50, 660, 0)), False)
sketch12.addGeometry(Part.LineSegment(App.Vector(50, 490, 0), App.Vector(50, 480, 0)), False)
sketch12.addGeometry(Part.LineSegment(App.Vector(50, 480, 0), App.Vector(-50, 480, 0)), False)
sketch12.addGeometry(Part.LineSegment(App.Vector(-50, 480, 0), App.Vector(-50, 490, 0)), False)
sketch12.addGeometry(Part.LineSegment(App.Vector(-50, 490, 0), App.Vector(50, 490, 0)), False)
sketch12.addGeometry(Part.LineSegment(App.Vector(50, 320, 0), App.Vector(50, 310, 0)), False)
sketch12.addGeometry(Part.LineSegment(App.Vector(50, 310, 0), App.Vector(-50, 310, 0)), False)
sketch12.addGeometry(Part.LineSegment(App.Vector(-50, 310, 0), App.Vector(-50, 320, 0)), False)
sketch12.addGeometry(Part.LineSegment(App.Vector(-50, 320, 0), App.Vector(50, 320, 0)), False)
sketch12.addGeometry(Part.LineSegment(App.Vector(50, 150, 0), App.Vector(50, 140, 0)), False)
sketch12.addGeometry(Part.LineSegment(App.Vector(50, 140, 0), App.Vector(-50, 140, 0)), False)
sketch12.addGeometry(Part.LineSegment(App.Vector(-50, 140, 0), App.Vector(-50, 150, 0)), False)
sketch12.addGeometry(Part.LineSegment(App.Vector(-50, 150, 0), App.Vector(50, 150, 0)), False)
sketch12.addConstraint(Sketcher.Constraint("Coincident", 0, 2, 1, 1))
sketch12.addConstraint(Sketcher.Constraint("Coincident", 1, 2, 2, 1))
sketch12.addConstraint(Sketcher.Constraint("Coincident", 2, 2, 3, 1))
sketch12.addConstraint(Sketcher.Constraint("Coincident", 3, 2, 0, 1))
sketch12.addConstraint(Sketcher.Constraint("Coincident", 4, 2, 5, 1))
sketch12.addConstraint(Sketcher.Constraint("Coincident", 5, 2, 6, 1))
sketch12.addConstraint(Sketcher.Constraint("Coincident", 6, 2, 7, 1))
sketch12.addConstraint(Sketcher.Constraint("Coincident", 7, 2, 4, 1))
sketch12.addConstraint(Sketcher.Constraint("Coincident", 8, 2, 9, 1))
sketch12.addConstraint(Sketcher.Constraint("Coincident", 9, 2, 10, 1))
sketch12.addConstraint(Sketcher.Constraint("Coincident", 10, 2, 11, 1))
sketch12.addConstraint(Sketcher.Constraint("Coincident", 11, 2, 8, 1))
sketch12.addConstraint(Sketcher.Constraint("Coincident", 12, 2, 13, 1))
sketch12.addConstraint(Sketcher.Constraint("Coincident", 13, 2, 14, 1))
sketch12.addConstraint(Sketcher.Constraint("Coincident", 14, 2, 15, 1))
sketch12.addConstraint(Sketcher.Constraint("Coincident", 15, 2, 12, 1))
sketch12.addConstraint(Sketcher.Constraint("Vertical", 0))
sketch12.addConstraint(Sketcher.Constraint("Horizontal", 1))
sketch12.addConstraint(Sketcher.Constraint("Vertical", 2))
sketch12.addConstraint(Sketcher.Constraint("Horizontal", 3))
sketch12.addConstraint(Sketcher.Constraint("Vertical", 4))
sketch12.addConstraint(Sketcher.Constraint("Horizontal", 5))
sketch12.addConstraint(Sketcher.Constraint("Vertical", 6))
sketch12.addConstraint(Sketcher.Constraint("Horizontal", 7))
sketch12.addConstraint(Sketcher.Constraint("Vertical", 8))
sketch12.addConstraint(Sketcher.Constraint("Horizontal", 9))
sketch12.addConstraint(Sketcher.Constraint("Vertical", 10))
sketch12.addConstraint(Sketcher.Constraint("Horizontal", 11))
sketch12.addConstraint(Sketcher.Constraint("Vertical", 12))
sketch12.addConstraint(Sketcher.Constraint("Horizontal", 13))
sketch12.addConstraint(Sketcher.Constraint("Vertical", 14))
sketch12.addConstraint(Sketcher.Constraint("Horizontal", 15))
sketch12.addConstraint(Sketcher.Constraint("Vertical", 3, 2, 4, 2))
sketch12.addConstraint(Sketcher.Constraint("Vertical", 2, 2, 5, 2))
sketch12.addConstraint(Sketcher.Constraint("Vertical", 7, 2, 8, 2))
sketch12.addConstraint(Sketcher.Constraint("Vertical", 6, 2, 9, 2))
sketch12.addConstraint(Sketcher.Constraint("Vertical", 11, 2, 12, 2))
sketch12.addConstraint(Sketcher.Constraint("Vertical", 10, 2, 13, 2))
sketch12.addConstraint(Sketcher.Constraint("Equal", 2, 4))
sketch12.addConstraint(Sketcher.Constraint("Equal", 6, 8))
sketch12.addConstraint(Sketcher.Constraint("Equal", 10, 12))
sketch12.addConstraint(Sketcher.Constraint("DistanceX", 1, 2, 1, 1, 100.0))
sketch12.addConstraint(Sketcher.Constraint("DistanceY", 0, 2, 0, 1, 10.0))
sketch12.addConstraint(Sketcher.Constraint("DistanceX", -1, 1, 0, 2, 50.0))
sketch12.addConstraint(Sketcher.Constraint("DistanceY", -1, 1, 0, 2, 650.0))
sketch12.addConstraint(Sketcher.Constraint("DistanceY", -1, 1, 4, 2, 480.0))
sketch12.addConstraint(Sketcher.Constraint("DistanceY", -1, 1, 8, 2, 310.0))
sketch12.addConstraint(Sketcher.Constraint("DistanceY", -1, 1, 12, 2, 140.0))
pad9 = body9.newObject("PartDesign::Pad", "Pad008")
pad9.Profile = sketch12
pad9.Length = 480
doc.recompute()

body10 = doc.addObject("PartDesign::Body", "Body009")
body10.BaseFeature = body9
boolean = body3.newObject("PartDesign::Boolean", "Boolean")
boolean.Type = "Cut"
boolean.addObjects([body10])
doc.recompute()

body11 = doc.addObject("PartDesign::Body", "Body010")
body11.BaseFeature = body9
boolean2 = body4.newObject("PartDesign::Boolean", "Boolean001")
boolean2.Type = "Cut"
boolean2.addObjects([body11])
doc.recompute()

body12 = doc.addObject("PartDesign::Body", "Body011")
body12.BaseFeature = body9
boolean3 = body5.newObject("PartDesign::Boolean", "Boolean002")
boolean3.Type = "Cut"
boolean3.addObjects([body12])
doc.recompute()

boolean4 = body6.newObject("PartDesign::Boolean", "Boolean003")
boolean4.Type = "Cut"
boolean4.addObjects([body9])

doc.recompute()
